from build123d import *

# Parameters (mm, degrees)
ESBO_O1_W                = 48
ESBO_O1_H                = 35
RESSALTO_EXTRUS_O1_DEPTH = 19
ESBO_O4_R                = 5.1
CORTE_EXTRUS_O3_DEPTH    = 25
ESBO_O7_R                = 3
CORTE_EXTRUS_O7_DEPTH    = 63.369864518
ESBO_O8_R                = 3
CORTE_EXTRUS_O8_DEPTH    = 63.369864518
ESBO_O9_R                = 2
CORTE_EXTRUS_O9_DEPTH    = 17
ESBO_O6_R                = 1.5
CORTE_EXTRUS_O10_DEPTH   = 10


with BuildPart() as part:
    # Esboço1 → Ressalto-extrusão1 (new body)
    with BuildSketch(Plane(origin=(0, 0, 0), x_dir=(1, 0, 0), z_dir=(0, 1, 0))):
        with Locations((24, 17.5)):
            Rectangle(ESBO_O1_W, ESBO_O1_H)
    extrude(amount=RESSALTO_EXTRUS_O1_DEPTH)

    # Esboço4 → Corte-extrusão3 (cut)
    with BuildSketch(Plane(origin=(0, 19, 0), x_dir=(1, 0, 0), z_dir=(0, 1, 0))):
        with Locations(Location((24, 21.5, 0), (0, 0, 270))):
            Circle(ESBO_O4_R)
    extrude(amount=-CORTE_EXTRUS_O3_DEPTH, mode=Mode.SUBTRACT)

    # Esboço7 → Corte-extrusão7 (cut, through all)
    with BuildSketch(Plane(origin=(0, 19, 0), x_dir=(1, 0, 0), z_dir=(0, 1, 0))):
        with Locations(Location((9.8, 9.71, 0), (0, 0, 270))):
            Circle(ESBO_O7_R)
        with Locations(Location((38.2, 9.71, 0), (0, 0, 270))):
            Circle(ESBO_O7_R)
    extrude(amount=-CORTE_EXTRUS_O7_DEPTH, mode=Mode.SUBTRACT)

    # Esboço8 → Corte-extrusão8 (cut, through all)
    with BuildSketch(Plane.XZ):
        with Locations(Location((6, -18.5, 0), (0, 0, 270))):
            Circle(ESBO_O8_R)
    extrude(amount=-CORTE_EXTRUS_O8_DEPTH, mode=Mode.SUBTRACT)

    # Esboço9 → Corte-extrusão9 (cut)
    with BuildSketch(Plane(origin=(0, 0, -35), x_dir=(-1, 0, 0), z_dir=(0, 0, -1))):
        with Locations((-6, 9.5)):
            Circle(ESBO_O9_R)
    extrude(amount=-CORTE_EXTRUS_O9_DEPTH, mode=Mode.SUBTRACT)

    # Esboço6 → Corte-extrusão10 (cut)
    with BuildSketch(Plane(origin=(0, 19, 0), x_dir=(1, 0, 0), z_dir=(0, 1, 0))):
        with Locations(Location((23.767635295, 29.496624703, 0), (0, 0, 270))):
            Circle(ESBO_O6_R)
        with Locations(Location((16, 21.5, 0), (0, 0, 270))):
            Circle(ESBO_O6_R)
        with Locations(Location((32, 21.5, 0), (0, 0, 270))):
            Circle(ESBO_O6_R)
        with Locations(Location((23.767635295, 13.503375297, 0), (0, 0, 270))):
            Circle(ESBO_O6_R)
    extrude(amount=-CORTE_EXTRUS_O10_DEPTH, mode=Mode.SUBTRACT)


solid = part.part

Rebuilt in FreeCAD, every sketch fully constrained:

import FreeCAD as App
import Part
import Sketcher
from FreeCAD import Vector

doc = App.newDocument("Part")
body = doc.addObject("PartDesign::Body", "Body")

sketch1 = doc.addObject("Sketcher::SketchObject", "Sketch")
body.addObject(sketch1)
sketch1.AttachmentSupport = (doc.XZ_Plane, [""])
sketch1.MapMode = "FlatFace"
sketch1.addGeometry(Part.LineSegment(Vector(0, -35, 0), Vector(0, 0, 0)), False)
sketch1.addGeometry(Part.LineSegment(Vector(0, 0, 0), Vector(48, 0, 0)), False)
sketch1.addGeometry(Part.LineSegment(Vector(48, 0, 0), Vector(48, -35, 0)), False)
sketch1.addGeometry(Part.LineSegment(Vector(48, -35, 0), Vector(0, -35, 0)), False)
sketch1.addConstraint(Sketcher.Constraint("Coincident", 0, 2, 1, 1))
sketch1.addConstraint(Sketcher.Constraint("Coincident", 1, 2, 2, 1))
sketch1.addConstraint(Sketcher.Constraint("Coincident", 2, 2, 3, 1))
sketch1.addConstraint(Sketcher.Constraint("Coincident", 3, 2, 0, 1))
sketch1.addConstraint(Sketcher.Constraint("Vertical", 0))
sketch1.addConstraint(Sketcher.Constraint("Horizontal", 1))
sketch1.addConstraint(Sketcher.Constraint("Vertical", 2))
sketch1.addConstraint(Sketcher.Constraint("Horizontal", 3))
sketch1.addConstraint(Sketcher.Constraint("Coincident", 0, 2, -1, 1))
sketch1.addConstraint(Sketcher.Constraint("DistanceX", 1, 1, 1, 2, 48.0))
sketch1.addConstraint(Sketcher.Constraint("DistanceY", 0, 1, 0, 2, 35.0))
pad1 = doc.addObject("PartDesign::Pad", "Pad")
body.addObject(pad1)
pad1.Profile = sketch1
pad1.Length = 19
pad1.Reversed = True

sketch2 = doc.addObject("Sketcher::SketchObject", "Sketch001")
body.addObject(sketch2)
sketch2.AttachmentSupport = (doc.XZ_Plane, [""])
sketch2.MapMode = "FlatFace"
sketch2.AttachmentOffset = App.Placement(Vector(0, 0, -19), App.Rotation())
sketch2.addGeometry(Part.Circle(Vector(24, -21.5, 0), Vector(0, 0, 1), 5.1), False)
sketch2.addConstraint(Sketcher.Constraint("Diameter", 0, 10.2))
sketch2.addConstraint(Sketcher.Constraint("DistanceX", -1, 1, 0, 3, 24.0))
sketch2.addConstraint(Sketcher.Constraint("DistanceY", 0, 3, -1, 1, 21.5))
pocket1 = doc.addObject("PartDesign::Pocket", "Pocket")
body.addObject(pocket1)
pocket1.Profile = sketch2
pocket1.Length = 25
pocket1.Reversed = True

sketch3 = doc.addObject("Sketcher::SketchObject", "Sketch002")
body.addObject(sketch3)
sketch3.AttachmentSupport = (doc.XZ_Plane, [""])
sketch3.MapMode = "FlatFace"
sketch3.AttachmentOffset = App.Placement(Vector(0, 0, -19), App.Rotation())
sketch3.addGeometry(Part.Circle(Vector(9.8, -9.71, 0), Vector(0, 0, 1), 3), False)
sketch3.addGeometry(Part.Circle(Vector(38.2, -9.71, 0), Vector(0, 0, 1), 3), False)
sketch3.addConstraint(Sketcher.Constraint("Equal", 0, 1))
sketch3.addConstraint(Sketcher.Constraint("Horizontal", 0, 3, 1, 3))
sketch3.addConstraint(Sketcher.Constraint("Diameter", 0, 6.0))
sketch3.addConstraint(Sketcher.Constraint("DistanceX", -1, 1, 0, 3, 9.8))
sketch3.addConstraint(Sketcher.Constraint("DistanceX", -1, 1, 1, 3, 38.2))
sketch3.addConstraint(Sketcher.Constraint("DistanceY", 0, 3, -1, 1, 9.71))
pocket2 = doc.addObject("PartDesign::Pocket", "Pocket001")
body.addObject(pocket2)
pocket2.Profile = sketch3
pocket2.Type = "ThroughAll"
pocket2.Reversed = True

sketch4 = doc.addObject("Sketcher::SketchObject", "Sketch003")
body.addObject(sketch4)
sketch4.AttachmentSupport = (doc.XZ_Plane, [""])
sketch4.MapMode = "FlatFace"
sketch4.addGeometry(Part.Circle(Vector(6, -18.5, 0), Vector(0, 0, 1), 3), False)
sketch4.addConstraint(Sketcher.Constraint("Diameter", 0, 6.0))
sketch4.addConstraint(Sketcher.Constraint("DistanceX", -1, 1, 0, 3, 6.0))
sketch4.addConstraint(Sketcher.Constraint("DistanceY", 0, 3, -1, 1, 18.5))
pocket3 = doc.addObject("PartDesign::Pocket", "Pocket002")
body.addObject(pocket3)
pocket3.Profile = sketch4
pocket3.Type = "ThroughAll"

sketch5 = doc.addObject("Sketcher::SketchObject", "Sketch004")
body.addObject(sketch5)
sketch5.AttachmentSupport = (doc.XY_Plane, [""])
sketch5.MapMode = "FlatFace"
sketch5.AttachmentOffset = App.Placement(Vector(0, 0, -35), App.Rotation())
sketch5.addGeometry(Part.Circle(Vector(6, 9.5, 0), Vector(0, 0, 1), 2), False)
sketch5.addConstraint(Sketcher.Constraint("Diameter", 0, 4.0))
sketch5.addConstraint(Sketcher.Constraint("DistanceX", -1, 1, 0, 3, 6.0))
sketch5.addConstraint(Sketcher.Constraint("DistanceY", -1, 1, 0, 3, 9.5))
pocket4 = doc.addObject("PartDesign::Pocket", "Pocket003")
body.addObject(pocket4)
pocket4.Profile = sketch5
pocket4.Length = 17
pocket4.Reversed = True

sketch6 = doc.addObject("Sketcher::SketchObject", "Sketch005")
body.addObject(sketch6)
sketch6.AttachmentSupport = (doc.XZ_Plane, [""])
sketch6.MapMode = "FlatFace"
sketch6.AttachmentOffset = App.Placement(Vector(0, 0, -19), App.Rotation())
sketch6.addGeometry(Part.Circle(Vector(23.767635, -29.496625, 0), Vector(0, 0, 1), 1.5), False)
sketch6.addGeometry(Part.Circle(Vector(16, -21.5, 0), Vector(0, 0, 1), 1.5), False)
sketch6.addGeometry(Part.Circle(Vector(32, -21.5, 0), Vector(0, 0, 1), 1.5), False)
sketch6.addGeometry(Part.Circle(Vector(23.767635, -13.503375, 0), Vector(0, 0, 1), 1.5), False)
sketch6.addConstraint(Sketcher.Constraint("Equal", 0, 1))
sketch6.addConstraint(Sketcher.Constraint("Equal", 1, 2))
sketch6.addConstraint(Sketcher.Constraint("Equal", 2, 3))
sketch6.addConstraint(Sketcher.Constraint("Horizontal", 1, 3, 2, 3))
sketch6.addConstraint(Sketcher.Constraint("Vertical", 0, 3, 3, 3))
sketch6.addConstraint(Sketcher.Constraint("Diameter", 0, 3.0))
sketch6.addConstraint(Sketcher.Constraint("DistanceX", -1, 1, 1, 3, 16.0))
sketch6.addConstraint(Sketcher.Constraint("DistanceX", -1, 1, 2, 3, 32.0))
sketch6.addConstraint(Sketcher.Constraint("DistanceY", 1, 3, -1, 1, 21.5))
sketch6.addConstraint(Sketcher.Constraint("DistanceY", 0, 3, 3, 3, 15.993249))
sketch6.addConstraint(Sketcher.Constraint("DistanceX", -1, 1, 0, 3, 23.767635))
sketch6.addConstraint(Sketcher.Constraint("DistanceY", 0, 3, -1, 1, 29.496625))
pocket5 = doc.addObject("PartDesign::Pocket", "Pocket004")
body.addObject(pocket5)
pocket5.Profile = sketch6
pocket5.Length = 10
pocket5.Reversed = True

doc.recompute()
